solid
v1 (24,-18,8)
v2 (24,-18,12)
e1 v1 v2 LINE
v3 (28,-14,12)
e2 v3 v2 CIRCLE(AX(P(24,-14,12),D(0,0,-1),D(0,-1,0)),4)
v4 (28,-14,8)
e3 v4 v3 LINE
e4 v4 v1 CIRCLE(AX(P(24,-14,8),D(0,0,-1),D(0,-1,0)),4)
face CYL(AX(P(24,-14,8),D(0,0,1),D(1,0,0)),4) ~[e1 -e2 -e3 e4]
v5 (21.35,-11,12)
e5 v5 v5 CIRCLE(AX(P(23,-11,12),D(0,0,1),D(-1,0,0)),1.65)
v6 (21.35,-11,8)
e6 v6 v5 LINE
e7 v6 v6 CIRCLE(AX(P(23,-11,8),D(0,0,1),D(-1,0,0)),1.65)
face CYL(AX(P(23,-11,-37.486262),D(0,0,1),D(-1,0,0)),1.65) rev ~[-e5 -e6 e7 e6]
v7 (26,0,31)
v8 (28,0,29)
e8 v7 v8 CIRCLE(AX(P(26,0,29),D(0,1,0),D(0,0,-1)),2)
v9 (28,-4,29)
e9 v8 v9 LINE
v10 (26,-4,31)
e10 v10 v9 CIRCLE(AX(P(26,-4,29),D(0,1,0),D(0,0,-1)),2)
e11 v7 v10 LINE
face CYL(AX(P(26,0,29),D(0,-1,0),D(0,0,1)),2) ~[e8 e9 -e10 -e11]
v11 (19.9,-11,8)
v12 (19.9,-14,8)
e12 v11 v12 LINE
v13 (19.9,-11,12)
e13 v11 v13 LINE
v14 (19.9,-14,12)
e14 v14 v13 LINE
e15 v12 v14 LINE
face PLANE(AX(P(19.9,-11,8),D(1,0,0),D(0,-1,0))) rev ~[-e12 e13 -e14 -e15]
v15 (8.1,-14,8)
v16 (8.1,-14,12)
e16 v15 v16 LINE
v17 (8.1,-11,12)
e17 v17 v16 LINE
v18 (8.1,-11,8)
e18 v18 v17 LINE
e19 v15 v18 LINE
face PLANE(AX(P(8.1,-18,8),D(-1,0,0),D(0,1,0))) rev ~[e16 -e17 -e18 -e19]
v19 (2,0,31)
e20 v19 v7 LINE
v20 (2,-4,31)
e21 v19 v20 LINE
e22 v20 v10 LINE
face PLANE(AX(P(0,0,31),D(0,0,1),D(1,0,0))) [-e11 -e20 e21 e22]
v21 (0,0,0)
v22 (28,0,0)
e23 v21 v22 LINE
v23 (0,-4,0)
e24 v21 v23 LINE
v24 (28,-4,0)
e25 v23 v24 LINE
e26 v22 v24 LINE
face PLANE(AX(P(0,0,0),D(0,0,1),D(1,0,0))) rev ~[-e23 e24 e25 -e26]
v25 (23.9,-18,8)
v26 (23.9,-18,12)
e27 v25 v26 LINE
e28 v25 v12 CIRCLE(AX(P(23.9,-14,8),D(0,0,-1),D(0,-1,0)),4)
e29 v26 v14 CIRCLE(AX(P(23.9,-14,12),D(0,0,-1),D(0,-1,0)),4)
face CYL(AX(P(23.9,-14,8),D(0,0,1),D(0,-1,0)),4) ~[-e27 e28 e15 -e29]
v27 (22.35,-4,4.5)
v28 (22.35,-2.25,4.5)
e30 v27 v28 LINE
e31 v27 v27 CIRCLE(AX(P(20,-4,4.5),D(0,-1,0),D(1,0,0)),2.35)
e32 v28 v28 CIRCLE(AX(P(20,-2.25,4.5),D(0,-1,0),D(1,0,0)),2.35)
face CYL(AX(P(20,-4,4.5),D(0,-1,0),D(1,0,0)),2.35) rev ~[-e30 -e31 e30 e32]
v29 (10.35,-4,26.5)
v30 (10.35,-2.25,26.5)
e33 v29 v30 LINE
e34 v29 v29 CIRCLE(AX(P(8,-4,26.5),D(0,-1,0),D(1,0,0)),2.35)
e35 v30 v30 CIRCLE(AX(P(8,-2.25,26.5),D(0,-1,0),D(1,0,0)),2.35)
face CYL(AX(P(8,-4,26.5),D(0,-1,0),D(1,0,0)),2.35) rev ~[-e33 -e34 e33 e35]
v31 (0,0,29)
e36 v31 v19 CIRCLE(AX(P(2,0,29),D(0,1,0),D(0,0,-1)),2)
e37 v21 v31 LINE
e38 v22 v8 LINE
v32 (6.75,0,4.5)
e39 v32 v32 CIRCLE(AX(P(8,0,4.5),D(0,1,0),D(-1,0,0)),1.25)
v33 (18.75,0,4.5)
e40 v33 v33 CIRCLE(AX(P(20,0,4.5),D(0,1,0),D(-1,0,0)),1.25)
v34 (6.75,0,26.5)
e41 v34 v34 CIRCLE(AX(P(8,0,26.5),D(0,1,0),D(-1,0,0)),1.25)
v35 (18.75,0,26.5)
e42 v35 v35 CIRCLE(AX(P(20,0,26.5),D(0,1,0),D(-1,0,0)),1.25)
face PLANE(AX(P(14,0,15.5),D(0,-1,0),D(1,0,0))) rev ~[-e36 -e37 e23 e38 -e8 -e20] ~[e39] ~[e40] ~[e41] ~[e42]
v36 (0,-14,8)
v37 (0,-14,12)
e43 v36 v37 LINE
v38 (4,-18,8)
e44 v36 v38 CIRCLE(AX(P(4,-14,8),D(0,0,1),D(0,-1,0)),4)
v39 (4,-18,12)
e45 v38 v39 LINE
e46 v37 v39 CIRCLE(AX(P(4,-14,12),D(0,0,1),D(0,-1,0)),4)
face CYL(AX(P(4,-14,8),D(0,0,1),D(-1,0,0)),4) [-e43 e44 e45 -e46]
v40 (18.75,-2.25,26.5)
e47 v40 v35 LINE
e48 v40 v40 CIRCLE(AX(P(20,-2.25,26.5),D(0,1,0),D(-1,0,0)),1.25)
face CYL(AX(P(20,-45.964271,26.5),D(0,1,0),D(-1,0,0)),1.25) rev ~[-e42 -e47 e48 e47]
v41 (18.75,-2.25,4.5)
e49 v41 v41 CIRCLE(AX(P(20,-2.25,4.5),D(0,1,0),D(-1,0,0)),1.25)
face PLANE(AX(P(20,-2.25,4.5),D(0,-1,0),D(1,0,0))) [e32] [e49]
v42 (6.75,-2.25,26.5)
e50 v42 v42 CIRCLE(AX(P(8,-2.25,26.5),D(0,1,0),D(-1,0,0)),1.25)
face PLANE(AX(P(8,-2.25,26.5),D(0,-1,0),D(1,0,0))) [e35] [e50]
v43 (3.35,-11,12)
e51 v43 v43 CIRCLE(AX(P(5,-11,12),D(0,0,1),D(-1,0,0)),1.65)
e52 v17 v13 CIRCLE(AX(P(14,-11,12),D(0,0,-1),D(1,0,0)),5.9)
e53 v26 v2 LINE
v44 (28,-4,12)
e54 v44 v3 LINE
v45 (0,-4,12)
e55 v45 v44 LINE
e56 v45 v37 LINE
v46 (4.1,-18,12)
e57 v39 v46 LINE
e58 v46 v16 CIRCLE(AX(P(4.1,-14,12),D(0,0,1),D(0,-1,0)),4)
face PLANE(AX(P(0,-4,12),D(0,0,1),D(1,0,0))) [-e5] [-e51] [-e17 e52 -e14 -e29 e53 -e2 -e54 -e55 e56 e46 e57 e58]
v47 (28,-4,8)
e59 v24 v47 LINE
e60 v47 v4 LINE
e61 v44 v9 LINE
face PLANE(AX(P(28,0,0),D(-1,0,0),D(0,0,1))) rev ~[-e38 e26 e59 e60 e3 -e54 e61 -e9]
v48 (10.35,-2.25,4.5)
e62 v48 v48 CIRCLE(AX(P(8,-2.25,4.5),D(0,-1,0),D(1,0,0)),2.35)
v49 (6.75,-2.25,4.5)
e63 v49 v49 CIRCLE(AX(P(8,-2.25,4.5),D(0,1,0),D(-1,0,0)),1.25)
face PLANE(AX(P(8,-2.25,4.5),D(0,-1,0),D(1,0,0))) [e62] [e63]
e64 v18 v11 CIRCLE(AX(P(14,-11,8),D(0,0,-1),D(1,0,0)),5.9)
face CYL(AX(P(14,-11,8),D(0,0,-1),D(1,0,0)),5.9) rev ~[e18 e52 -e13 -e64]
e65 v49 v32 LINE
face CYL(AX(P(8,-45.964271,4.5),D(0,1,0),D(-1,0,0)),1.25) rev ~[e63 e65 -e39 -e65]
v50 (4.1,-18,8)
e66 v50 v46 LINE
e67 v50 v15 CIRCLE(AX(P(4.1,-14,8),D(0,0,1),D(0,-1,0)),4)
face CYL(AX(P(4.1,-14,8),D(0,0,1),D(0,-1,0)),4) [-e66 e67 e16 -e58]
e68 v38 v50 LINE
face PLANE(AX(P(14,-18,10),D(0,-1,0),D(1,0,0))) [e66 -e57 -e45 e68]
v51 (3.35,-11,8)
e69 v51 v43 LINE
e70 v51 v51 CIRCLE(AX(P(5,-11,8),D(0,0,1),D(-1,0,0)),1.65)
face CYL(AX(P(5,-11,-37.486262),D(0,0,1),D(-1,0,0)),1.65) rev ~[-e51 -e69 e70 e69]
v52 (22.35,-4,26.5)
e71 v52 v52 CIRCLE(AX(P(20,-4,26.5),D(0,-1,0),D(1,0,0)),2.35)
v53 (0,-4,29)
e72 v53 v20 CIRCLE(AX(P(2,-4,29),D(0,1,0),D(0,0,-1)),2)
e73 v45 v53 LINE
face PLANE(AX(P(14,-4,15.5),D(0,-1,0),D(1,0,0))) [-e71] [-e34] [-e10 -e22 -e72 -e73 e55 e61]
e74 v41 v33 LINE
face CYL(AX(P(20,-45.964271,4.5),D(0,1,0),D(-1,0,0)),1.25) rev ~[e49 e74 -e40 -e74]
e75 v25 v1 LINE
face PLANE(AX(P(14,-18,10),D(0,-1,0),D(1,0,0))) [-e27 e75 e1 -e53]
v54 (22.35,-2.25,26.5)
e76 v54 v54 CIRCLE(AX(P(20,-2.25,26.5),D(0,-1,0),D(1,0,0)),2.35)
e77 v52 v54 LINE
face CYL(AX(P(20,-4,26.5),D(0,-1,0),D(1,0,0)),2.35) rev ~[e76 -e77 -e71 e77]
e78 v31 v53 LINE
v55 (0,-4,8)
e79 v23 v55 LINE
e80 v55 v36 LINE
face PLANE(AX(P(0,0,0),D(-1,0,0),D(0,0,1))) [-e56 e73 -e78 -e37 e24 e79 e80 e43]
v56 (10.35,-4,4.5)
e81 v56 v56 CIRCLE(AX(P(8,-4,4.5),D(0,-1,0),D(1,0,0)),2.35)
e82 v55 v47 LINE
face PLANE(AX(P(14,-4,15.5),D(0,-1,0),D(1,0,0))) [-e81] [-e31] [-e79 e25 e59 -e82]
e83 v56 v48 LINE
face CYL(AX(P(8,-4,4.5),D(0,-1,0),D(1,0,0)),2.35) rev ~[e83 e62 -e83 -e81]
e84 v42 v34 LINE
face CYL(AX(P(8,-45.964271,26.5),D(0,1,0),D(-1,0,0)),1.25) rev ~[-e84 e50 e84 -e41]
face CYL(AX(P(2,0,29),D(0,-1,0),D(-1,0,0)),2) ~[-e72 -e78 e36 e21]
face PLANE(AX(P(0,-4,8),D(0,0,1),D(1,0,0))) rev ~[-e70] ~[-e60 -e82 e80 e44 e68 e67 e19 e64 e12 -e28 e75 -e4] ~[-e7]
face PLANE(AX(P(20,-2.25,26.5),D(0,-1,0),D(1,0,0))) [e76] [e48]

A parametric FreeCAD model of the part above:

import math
import FreeCAD as App
import Part
import Sketcher


def edges_at(feature, points):
    """Names of the edges that pass closest to the given points."""
    edges = feature.Shape.Edges
    near = lambda p: min(range(len(edges)), key=lambda i: edges[i].distToShape(Part.Vertex(*p))[0])
    return sorted({f"Edge{near(p) + 1}" for p in points})

doc = App.newDocument("Part")
body = doc.addObject("PartDesign::Body", "Body")

sketch1 = body.newObject("Sketcher::SketchObject", "Sketch")
sketch1.AttachmentSupport = (doc.getObject("XZ_Plane"), [""])
sketch1.MapMode = "FlatFace"
sketch1.addGeometry(Part.LineSegment(App.Vector(0, 31, 0), App.Vector(0, 0, 0)), False)
sketch1.addGeometry(Part.LineSegment(App.Vector(0, 0, 0), App.Vector(28, 0, 0)), False)
sketch1.addGeometry(Part.LineSegment(App.Vector(28, 0, 0), App.Vector(28, 31, 0)), False)
sketch1.addGeometry(Part.LineSegment(App.Vector(28, 31, 0), App.Vector(0, 31, 0)), False)
sketch1.addConstraint(Sketcher.Constraint("Coincident", 0, 2, 1, 1))
sketch1.addConstraint(Sketcher.Constraint("Coincident", 1, 2, 2, 1))
sketch1.addConstraint(Sketcher.Constraint("Coincident", 2, 2, 3, 1))
sketch1.addConstraint(Sketcher.Constraint("Coincident", 3, 2, 0, 1))
sketch1.addConstraint(Sketcher.Constraint("Vertical", 0))
sketch1.addConstraint(Sketcher.Constraint("Horizontal", 1))
sketch1.addConstraint(Sketcher.Constraint("Vertical", 2))
sketch1.addConstraint(Sketcher.Constraint("Horizontal", 3))
sketch1.addConstraint(Sketcher.Constraint("Coincident", 0, 2, -1, 1))
sketch1.addConstraint(Sketcher.Constraint("DistanceX", 1, 1, 1, 2, 28.0))
sketch1.addConstraint(Sketcher.Constraint("DistanceY", 0, 2, 0, 1, 31.0))
pad1 = body.newObject("PartDesign::Pad", "Pad")
pad1.Profile = sketch1
pad1.Length = 4

sketch2 = body.newObject("Sketcher::SketchObject", "Sketch001")
sketch2.AttachmentSupport = (doc.getObject("XZ_Plane"), [""])
sketch2.MapMode = "FlatFace"
sketch2.AttachmentOffset = App.Placement(App.Vector(0, 0, 4), App.Rotation())
sketch2.addGeometry(Part.Circle(App.Vector(8, 26.5, 0), App.Vector(0, 0, 1), 1.2), False)
sketch2.addGeometry(Part.Circle(App.Vector(20, 26.5, 0), App.Vector(0, 0, 1), 1.2), False)
sketch2.addGeometry(Part.Circle(App.Vector(20, 4.5, 0), App.Vector(0, 0, 1), 1.2), False)
sketch2.addGeometry(Part.Circle(App.Vector(8, 4.5, 0), App.Vector(0, 0, 1), 1.2), False)
sketch2.addConstraint(Sketcher.Constraint("Equal", 0, 1))
sketch2.addConstraint(Sketcher.Constraint("Equal", 1, 2))
sketch2.addConstraint(Sketcher.Constraint("Equal", 2, 3))
sketch2.addConstraint(Sketcher.Constraint("Horizontal", 0, 3, 1, 3))
sketch2.addConstraint(Sketcher.Constraint("Horizontal", 2, 3, 3, 3))
sketch2.addConstraint(Sketcher.Constraint("Vertical", 1, 3, 2, 3))
sketch2.addConstraint(Sketcher.Constraint("Vertical", 0, 3, 3, 3))
sketch2.addConstraint(Sketcher.Constraint("Diameter", 0, 2.5))
sketch2.addConstraint(Sketcher.Constraint("DistanceX", -1, 1, 0, 3, 8.0))
sketch2.addConstraint(Sketcher.Constraint("DistanceX", -1, 1, 1, 3, 20.0))
sketch2.addConstraint(Sketcher.Constraint("DistanceY", 2, 3, 1, 3, 22.0))
sketch2.addConstraint(Sketcher.Constraint("DistanceY", -1, 1, 0, 3, 26.5))
doc.recompute()
hole = body.newObject("PartDesign::Hole", "Hole")
hole.Profile = sketch2
hole.ThreadType = "None"
hole.Diameter = 2.5
hole.DepthType = "ThroughAll"

sketch3 = body.newObject("Sketcher::SketchObject", "Sketch002")
sketch3.AttachmentSupport = (doc.getObject("XZ_Plane"), [""])
sketch3.MapMode = "FlatFace"
sketch3.AttachmentOffset = App.Placement(App.Vector(0, 0, 4), App.Rotation())
sketch3.addGeometry(Part.LineSegment(App.Vector(0, 12, 0), App.Vector(0, 8, 0)), False)
sketch3.addGeometry(Part.LineSegment(App.Vector(0, 8, 0), App.Vector(28, 8, 0)), False)
sketch3.addGeometry(Part.LineSegment(App.Vector(28, 8, 0), App.Vector(28, 12, 0)), False)
sketch3.addGeometry(Part.LineSegment(App.Vector(28, 12, 0), App.Vector(0, 12, 0)), False)
sketch3.addConstraint(Sketcher.Constraint("Coincident", 0, 2, 1, 1))
sketch3.addConstraint(Sketcher.Constraint("Coincident", 1, 2, 2, 1))
sketch3.addConstraint(Sketcher.Constraint("Coincident", 2, 2, 3, 1))
sketch3.addConstraint(Sketcher.Constraint("Coincident", 3, 2, 0, 1))
sketch3.addConstraint(Sketcher.Constraint("Vertical", 0))
sketch3.addConstraint(Sketcher.Constraint("Horizontal", 1))
sketch3.addConstraint(Sketcher.Constraint("Vertical", 2))
sketch3.addConstraint(Sketcher.Constraint("Horizontal", 3))
sketch3.addConstraint(Sketcher.Constraint("PointOnObject", 0, 2, -2))
sketch3.addConstraint(Sketcher.Constraint("DistanceX", 1, 1, 1, 2, 28.0))
sketch3.addConstraint(Sketcher.Constraint("DistanceY", 0, 2, 0, 1, 4.0))
sketch3.addConstraint(Sketcher.Constraint("DistanceY", -1, 1, 0, 2, 8.0))
pad2 = body.newObject("PartDesign::Pad", "Pad001")
pad2.Profile = sketch3
pad2.Length = 14

sketch4 = body.newObject("Sketcher::SketchObject", "Sketch003")
sketch4.AttachmentSupport = (doc.getObject("XY_Plane"), [""])
sketch4.MapMode = "FlatFace"
sketch4.AttachmentOffset = App.Placement(App.Vector(0, 0, 8), App.Rotation())
sketch4.addGeometry(Part.LineSegment(App.Vector(20, -11, 0), App.Vector(20, -18, 0)), False)
sketch4.addGeometry(Part.LineSegment(App.Vector(20, -18, 0), App.Vector(8, -18, 0)), False)
sketch4.addGeometry(Part.LineSegment(App.Vector(8, -18, 0), App.Vector(8, -11, 0)), False)
sketch4.addGeometry(Part.ArcOfCircle(Part.Circle(App.Vector(14, -11, 0), App.Vector(0, 0, 1), 6), math.radians(0), math.radians(180)), False)
sketch4.addConstraint(Sketcher.Constraint("Coincident", 0, 2, 1, 1))
sketch4.addConstraint(Sketcher.Constraint("Coincident", 1, 2, 2, 1))
sketch4.addConstraint(Sketcher.Constraint("Tangent", 2, 2, 3, 2))
sketch4.addConstraint(Sketcher.Constraint("Tangent", 3, 1, 0, 1))
sketch4.addConstraint(Sketcher.Constraint("Vertical", 0))
sketch4.addConstraint(Sketcher.Constraint("Horizontal", 1))
sketch4.addConstraint(Sketcher.Constraint("Vertical", 2))
sketch4.addConstraint(Sketcher.Constraint("Radius", 3, 5.9))
sketch4.addConstraint(Sketcher.Constraint("DistanceY", 0, 2, 0, 1, 7.0))
sketch4.addConstraint(Sketcher.Constraint("DistanceX", -1, 1, 3, 3, 14.0))
sketch4.addConstraint(Sketcher.Constraint("DistanceY", 3, 3, -1, 1, 11.0))
pocket1 = body.newObject("PartDesign::Pocket", "Pocket")
pocket1.Profile = sketch4
pocket1.Length = 25
pocket1.Reversed = True

sketch5 = body.newObject("Sketcher::SketchObject", "Sketch004")
sketch5.AttachmentSupport = (doc.getObject("XY_Plane"), [""])
sketch5.MapMode = "FlatFace"
sketch5.AttachmentOffset = App.Placement(App.Vector(0, 0, 8), App.Rotation())
sketch5.addGeometry(Part.Circle(App.Vector(5, -11, 0), App.Vector(0, 0, 1), 1.6), False)
sketch5.addGeometry(Part.Circle(App.Vector(23, -11, 0), App.Vector(0, 0, 1), 1.6), False)
sketch5.addConstraint(Sketcher.Constraint("Equal", 0, 1))
sketch5.addConstraint(Sketcher.Constraint("Horizontal", 0, 3, 1, 3))
sketch5.addConstraint(Sketcher.Constraint("Diameter", 0, 3.3))
sketch5.addConstraint(Sketcher.Constraint("DistanceX", -1, 1, 0, 3, 5.0))
sketch5.addConstraint(Sketcher.Constraint("DistanceY", 0, 3, -1, 1, 11.0))
sketch5.addConstraint(Sketcher.Constraint("DistanceX", -1, 1, 1, 3, 23.0))
doc.recompute()
hole2 = body.newObject("PartDesign::Hole", "Hole001")
hole2.Profile = sketch5
hole2.ThreadType = "None"
hole2.Diameter = 3.3
hole2.DepthType = "ThroughAll"
hole2.Reversed = True
doc.recompute()

fillet = body.newObject("PartDesign::Fillet", "Fillet")
fillet.Base = (hole2, edges_at(hole2, [
    (28, -18, 10),
    (19.9, -18, 10),
    (8.1, -18, 10),
    (0, -18, 10),
]))
fillet.Radius = 4
doc.recompute()

fillet2 = body.newObject("PartDesign::Fillet", "Fillet001")
fillet2.Base = (fillet, edges_at(fillet, [(28, -2, 31), (0, -2, 31)]))
fillet2.Radius = 2

sketch6 = body.newObject("Sketcher::SketchObject", "Sketch005")
sketch6.AttachmentSupport = (doc.getObject("XZ_Plane"), [""])
sketch6.MapMode = "FlatFace"
sketch6.AttachmentOffset = App.Placement(App.Vector(0, 0, 4), App.Rotation())
sketch6.addGeometry(Part.Circle(App.Vector(8, 26.5, 0), App.Vector(0, 0, 1), 2.4), False)
sketch6.addGeometry(Part.Circle(App.Vector(20, 26.5, 0), App.Vector(0, 0, 1), 2.4), False)
sketch6.addGeometry(Part.Circle(App.Vector(20, 4.5, 0), App.Vector(0, 0, 1), 2.4), False)
sketch6.addGeometry(Part.Circle(App.Vector(8, 4.5, 0), App.Vector(0, 0, 1), 2.4), False)
sketch6.addConstraint(Sketcher.Constraint("Equal", 0, 1))
sketch6.addConstraint(Sketcher.Constraint("Equal", 1, 2))
sketch6.addConstraint(Sketcher.Constraint("Equal", 2, 3))
sketch6.addConstraint(Sketcher.Constraint("Horizontal", 0, 3, 1, 3))
sketch6.addConstraint(Sketcher.Constraint("Horizontal", 2, 3, 3, 3))
sketch6.addConstraint(Sketcher.Constraint("Vertical", 1, 3, 2, 3))
sketch6.addConstraint(Sketcher.Constraint("Vertical", 0, 3, 3, 3))
sketch6.addConstraint(Sketcher.Constraint("Diameter", 0, 4.7))
sketch6.addConstraint(Sketcher.Constraint("DistanceX", -1, 1, 0, 3, 8.0))
sketch6.addConstraint(Sketcher.Constraint("DistanceX", -1, 1, 1, 3, 20.0))
sketch6.addConstraint(Sketcher.Constraint("DistanceY", 2, 3, 1, 3, 22.0))
sketch6.addConstraint(Sketcher.Constraint("DistanceY", -1, 1, 0, 3, 26.5))
pocket2 = body.newObject("PartDesign::Pocket", "Pocket001")
pocket2.Profile = sketch6
pocket2.Length = 1.75

doc.recompute()
